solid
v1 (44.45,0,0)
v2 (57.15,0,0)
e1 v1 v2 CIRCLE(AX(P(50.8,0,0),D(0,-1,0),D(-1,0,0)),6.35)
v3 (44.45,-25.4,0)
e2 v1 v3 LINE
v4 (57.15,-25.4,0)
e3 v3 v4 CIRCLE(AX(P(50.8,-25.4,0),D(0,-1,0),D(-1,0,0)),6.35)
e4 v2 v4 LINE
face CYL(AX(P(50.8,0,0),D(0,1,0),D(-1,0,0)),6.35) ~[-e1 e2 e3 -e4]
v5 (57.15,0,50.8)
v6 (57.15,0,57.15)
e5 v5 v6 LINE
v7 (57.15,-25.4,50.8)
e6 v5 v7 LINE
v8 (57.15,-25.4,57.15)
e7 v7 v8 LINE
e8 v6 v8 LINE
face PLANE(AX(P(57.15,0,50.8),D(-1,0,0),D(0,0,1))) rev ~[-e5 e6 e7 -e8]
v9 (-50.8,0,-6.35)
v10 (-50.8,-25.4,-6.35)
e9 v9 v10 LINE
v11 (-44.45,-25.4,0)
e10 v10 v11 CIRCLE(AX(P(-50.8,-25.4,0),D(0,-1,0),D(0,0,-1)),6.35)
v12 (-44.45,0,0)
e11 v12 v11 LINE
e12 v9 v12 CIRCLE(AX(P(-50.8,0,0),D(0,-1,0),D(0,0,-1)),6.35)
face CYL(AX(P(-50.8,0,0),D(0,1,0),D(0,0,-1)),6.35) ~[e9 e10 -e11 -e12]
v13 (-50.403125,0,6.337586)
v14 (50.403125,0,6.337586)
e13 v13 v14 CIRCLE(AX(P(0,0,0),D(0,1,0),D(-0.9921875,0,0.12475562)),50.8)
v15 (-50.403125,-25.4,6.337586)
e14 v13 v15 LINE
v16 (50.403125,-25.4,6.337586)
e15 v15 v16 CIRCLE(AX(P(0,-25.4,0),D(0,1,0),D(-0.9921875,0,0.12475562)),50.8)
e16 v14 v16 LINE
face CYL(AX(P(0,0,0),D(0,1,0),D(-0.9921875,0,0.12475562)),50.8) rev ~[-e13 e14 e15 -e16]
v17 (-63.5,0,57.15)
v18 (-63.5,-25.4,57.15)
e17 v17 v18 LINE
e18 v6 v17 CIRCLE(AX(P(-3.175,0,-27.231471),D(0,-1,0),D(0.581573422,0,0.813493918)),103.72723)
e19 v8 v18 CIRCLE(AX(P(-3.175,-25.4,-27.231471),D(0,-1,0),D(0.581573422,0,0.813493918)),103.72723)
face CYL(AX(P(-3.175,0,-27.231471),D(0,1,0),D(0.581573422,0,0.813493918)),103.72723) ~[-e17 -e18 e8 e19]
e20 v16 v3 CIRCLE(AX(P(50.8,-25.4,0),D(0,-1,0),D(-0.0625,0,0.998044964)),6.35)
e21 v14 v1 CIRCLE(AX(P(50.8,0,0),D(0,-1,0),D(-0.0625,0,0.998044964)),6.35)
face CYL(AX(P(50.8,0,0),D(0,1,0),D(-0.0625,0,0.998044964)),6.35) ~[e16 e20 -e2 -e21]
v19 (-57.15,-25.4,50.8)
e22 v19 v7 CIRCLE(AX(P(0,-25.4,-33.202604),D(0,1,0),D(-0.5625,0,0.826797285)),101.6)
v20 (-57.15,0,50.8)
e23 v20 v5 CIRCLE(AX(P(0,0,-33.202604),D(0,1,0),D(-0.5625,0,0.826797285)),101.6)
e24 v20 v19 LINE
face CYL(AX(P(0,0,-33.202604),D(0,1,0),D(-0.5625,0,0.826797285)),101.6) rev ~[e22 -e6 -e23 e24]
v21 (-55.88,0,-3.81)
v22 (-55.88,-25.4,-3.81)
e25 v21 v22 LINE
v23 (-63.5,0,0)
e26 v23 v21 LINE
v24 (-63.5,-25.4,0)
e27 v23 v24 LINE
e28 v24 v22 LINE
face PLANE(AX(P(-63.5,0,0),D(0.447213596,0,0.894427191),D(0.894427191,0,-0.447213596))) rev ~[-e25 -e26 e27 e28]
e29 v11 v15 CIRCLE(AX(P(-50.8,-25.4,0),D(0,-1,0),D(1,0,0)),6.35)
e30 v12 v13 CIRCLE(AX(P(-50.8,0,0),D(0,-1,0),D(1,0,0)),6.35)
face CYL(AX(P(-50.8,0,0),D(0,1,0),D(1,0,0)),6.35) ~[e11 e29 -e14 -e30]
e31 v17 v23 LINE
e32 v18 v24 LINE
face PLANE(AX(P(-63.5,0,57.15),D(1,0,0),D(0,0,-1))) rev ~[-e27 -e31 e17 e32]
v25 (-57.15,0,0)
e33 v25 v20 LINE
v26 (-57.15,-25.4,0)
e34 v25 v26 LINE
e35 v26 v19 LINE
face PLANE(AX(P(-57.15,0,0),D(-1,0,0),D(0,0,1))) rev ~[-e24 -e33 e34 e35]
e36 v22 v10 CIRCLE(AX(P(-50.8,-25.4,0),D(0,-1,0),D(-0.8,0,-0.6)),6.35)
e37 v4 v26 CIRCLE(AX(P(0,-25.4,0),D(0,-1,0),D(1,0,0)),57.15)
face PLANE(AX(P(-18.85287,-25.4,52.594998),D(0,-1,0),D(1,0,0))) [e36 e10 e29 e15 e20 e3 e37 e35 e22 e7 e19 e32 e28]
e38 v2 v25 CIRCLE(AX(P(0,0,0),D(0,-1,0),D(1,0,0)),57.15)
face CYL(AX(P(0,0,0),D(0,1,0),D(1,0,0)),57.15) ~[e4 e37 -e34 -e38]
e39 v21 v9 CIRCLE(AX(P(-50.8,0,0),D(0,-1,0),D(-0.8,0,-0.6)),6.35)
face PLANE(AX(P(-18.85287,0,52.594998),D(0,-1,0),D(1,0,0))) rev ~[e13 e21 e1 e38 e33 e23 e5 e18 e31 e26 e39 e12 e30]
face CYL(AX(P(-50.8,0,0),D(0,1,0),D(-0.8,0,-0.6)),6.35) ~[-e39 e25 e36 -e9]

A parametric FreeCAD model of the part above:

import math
import FreeCAD as App
import Part
import Sketcher
from FreeCAD import Vector
Q = App.Units.Quantity

doc = App.newDocument("Part")
body = doc.addObject("PartDesign::Body", "Body")

sketch1 = body.newObject("Sketcher::SketchObject", "Sketch")
sketch1.AttachmentSupport = (doc.getObject("XZ_Plane"), [""])
sketch1.MapMode = "FlatFace"
sketch1.addGeometry([
    Part.LineSegment(Vector(-57, 0, 0), Vector(-57, 51, 0)),
    Part.ArcOfCircle(Part.Circle(Vector(0, -33, 0), Vector(0, 0, 1), 102), math.radians(56), math.radians(124)),
    Part.LineSegment(Vector(57, 51, 0), Vector(57, 57, 0)),
    Part.ArcOfCircle(Part.Circle(Vector(-3, -27, 0), Vector(0, 0, 1), 104), math.radians(54), math.radians(126)),
    Part.LineSegment(Vector(-64, 57, 0), Vector(-64, 0, 0)),
    Part.LineSegment(Vector(-64, 0, 0), Vector(-56, -4, 0)),
    Part.ArcOfCircle(Part.Circle(Vector(-51, 0, 0), Vector(0, 0, 1), 6), math.radians(-143), math.radians(-90)),
    Part.ArcOfCircle(Part.Circle(Vector(-51, 0, 0), Vector(0, 0, 1), 6), math.radians(-90), math.radians(0)),
    Part.ArcOfCircle(Part.Circle(Vector(-51, 0, 0), Vector(0, 0, 1), 6), math.radians(0), math.radians(86)),
    Part.ArcOfCircle(Part.Circle(Vector(0, 0, 0), Vector(0, 0, 1), 51), math.radians(7), math.radians(173)),
    Part.ArcOfCircle(Part.Circle(Vector(51, 0, 0), Vector(0, 0, 1), 6), math.radians(94), math.radians(180)),
    Part.ArcOfCircle(Part.Circle(Vector(51, 0, 0), Vector(0, 0, 1), 6), math.radians(180), math.radians(360)),
    Part.ArcOfCircle(Part.Circle(Vector(0, 0, 0), Vector(0, 0, 1), 57), math.radians(0), math.radians(180)),
], False)
sketch1.addConstraint([
    Sketcher.Constraint("Coincident", 0, 2, 1, 2),
    Sketcher.Constraint("Coincident", 1, 1, 2, 1),
    Sketcher.Constraint("Coincident", 2, 2, 3, 1),
    Sketcher.Constraint("Coincident", 3, 2, 4, 1),
    Sketcher.Constraint("Coincident", 4, 2, 5, 1),
    Sketcher.Constraint("Coincident", 5, 2, 6, 1),
    Sketcher.Constraint("Tangent", 6, 2, 7, 1),
    Sketcher.Constraint("Tangent", 7, 2, 8, 1),
    Sketcher.Constraint("Coincident", 8, 2, 9, 2),
    Sketcher.Constraint("Coincident", 9, 1, 10, 1),
    Sketcher.Constraint("Tangent", 10, 2, 11, 1),
    Sketcher.Constraint("Tangent", 11, 2, 12, 1),
    Sketcher.Constraint("Tangent", 12, 2, 0, 1),
    Sketcher.Constraint("Vertical", 0),
    Sketcher.Constraint("Vertical", 2),
    Sketcher.Constraint("Vertical", 4),
    Sketcher.Constraint("Coincident", 9, 3, -1, 1),
    Sketcher.Constraint("Coincident", 12, 3, -1, 1),
    Sketcher.Constraint("Coincident", 8, 3, 6, 3),
    Sketcher.Constraint("Equal", 8, 10),
    Sketcher.Constraint("Equal", 10, 11),
    Sketcher.Constraint("Symmetric", 6, 3, 10, 3, -1, 1),
    Sketcher.Constraint("Symmetric", 0, 2, 1, 1, -2),
    Sketcher.Constraint("PointOnObject", 6, 3, -1),
    Sketcher.Constraint("PointOnObject", 4, 2, -1),
    Sketcher.Constraint("PointOnObject", 7, 2, -1),
    Sketcher.Constraint("PointOnObject", 10, 2, -1),
    Sketcher.Constraint("Horizontal", 2, 2, 3, 2),
    Sketcher.Constraint("Vertical", 8, 3, 6, 2),
    Sketcher.Constraint("Radius", 1, Q("4 in")),
    Sketcher.Constraint("Radius", 9, Q("2 in")),
    Sketcher.Constraint("DistanceY", 0, 1, 0, 2, Q("2 in")),
    Sketcher.Constraint("Radius", 6, Q("0.25 in")),
    Sketcher.Constraint("Radius", 12, Q("2.25 in")),
    Sketcher.Constraint("DistanceY", 2, 1, 2, 2, Q("0.25 in")),
    Sketcher.Constraint("DistanceX", 3, 2, -1, 1, Q("2.5 in")),
    Sketcher.Constraint("DistanceX", 5, 2, -1, 1, Q("2.2 in")),
    Sketcher.Constraint("Radius", 3, 103.72723),
])
pad1 = body.newObject("PartDesign::Pad", "Pad")
pad1.Profile = sketch1
pad1.Length = Q("1 in")

doc.recompute()
